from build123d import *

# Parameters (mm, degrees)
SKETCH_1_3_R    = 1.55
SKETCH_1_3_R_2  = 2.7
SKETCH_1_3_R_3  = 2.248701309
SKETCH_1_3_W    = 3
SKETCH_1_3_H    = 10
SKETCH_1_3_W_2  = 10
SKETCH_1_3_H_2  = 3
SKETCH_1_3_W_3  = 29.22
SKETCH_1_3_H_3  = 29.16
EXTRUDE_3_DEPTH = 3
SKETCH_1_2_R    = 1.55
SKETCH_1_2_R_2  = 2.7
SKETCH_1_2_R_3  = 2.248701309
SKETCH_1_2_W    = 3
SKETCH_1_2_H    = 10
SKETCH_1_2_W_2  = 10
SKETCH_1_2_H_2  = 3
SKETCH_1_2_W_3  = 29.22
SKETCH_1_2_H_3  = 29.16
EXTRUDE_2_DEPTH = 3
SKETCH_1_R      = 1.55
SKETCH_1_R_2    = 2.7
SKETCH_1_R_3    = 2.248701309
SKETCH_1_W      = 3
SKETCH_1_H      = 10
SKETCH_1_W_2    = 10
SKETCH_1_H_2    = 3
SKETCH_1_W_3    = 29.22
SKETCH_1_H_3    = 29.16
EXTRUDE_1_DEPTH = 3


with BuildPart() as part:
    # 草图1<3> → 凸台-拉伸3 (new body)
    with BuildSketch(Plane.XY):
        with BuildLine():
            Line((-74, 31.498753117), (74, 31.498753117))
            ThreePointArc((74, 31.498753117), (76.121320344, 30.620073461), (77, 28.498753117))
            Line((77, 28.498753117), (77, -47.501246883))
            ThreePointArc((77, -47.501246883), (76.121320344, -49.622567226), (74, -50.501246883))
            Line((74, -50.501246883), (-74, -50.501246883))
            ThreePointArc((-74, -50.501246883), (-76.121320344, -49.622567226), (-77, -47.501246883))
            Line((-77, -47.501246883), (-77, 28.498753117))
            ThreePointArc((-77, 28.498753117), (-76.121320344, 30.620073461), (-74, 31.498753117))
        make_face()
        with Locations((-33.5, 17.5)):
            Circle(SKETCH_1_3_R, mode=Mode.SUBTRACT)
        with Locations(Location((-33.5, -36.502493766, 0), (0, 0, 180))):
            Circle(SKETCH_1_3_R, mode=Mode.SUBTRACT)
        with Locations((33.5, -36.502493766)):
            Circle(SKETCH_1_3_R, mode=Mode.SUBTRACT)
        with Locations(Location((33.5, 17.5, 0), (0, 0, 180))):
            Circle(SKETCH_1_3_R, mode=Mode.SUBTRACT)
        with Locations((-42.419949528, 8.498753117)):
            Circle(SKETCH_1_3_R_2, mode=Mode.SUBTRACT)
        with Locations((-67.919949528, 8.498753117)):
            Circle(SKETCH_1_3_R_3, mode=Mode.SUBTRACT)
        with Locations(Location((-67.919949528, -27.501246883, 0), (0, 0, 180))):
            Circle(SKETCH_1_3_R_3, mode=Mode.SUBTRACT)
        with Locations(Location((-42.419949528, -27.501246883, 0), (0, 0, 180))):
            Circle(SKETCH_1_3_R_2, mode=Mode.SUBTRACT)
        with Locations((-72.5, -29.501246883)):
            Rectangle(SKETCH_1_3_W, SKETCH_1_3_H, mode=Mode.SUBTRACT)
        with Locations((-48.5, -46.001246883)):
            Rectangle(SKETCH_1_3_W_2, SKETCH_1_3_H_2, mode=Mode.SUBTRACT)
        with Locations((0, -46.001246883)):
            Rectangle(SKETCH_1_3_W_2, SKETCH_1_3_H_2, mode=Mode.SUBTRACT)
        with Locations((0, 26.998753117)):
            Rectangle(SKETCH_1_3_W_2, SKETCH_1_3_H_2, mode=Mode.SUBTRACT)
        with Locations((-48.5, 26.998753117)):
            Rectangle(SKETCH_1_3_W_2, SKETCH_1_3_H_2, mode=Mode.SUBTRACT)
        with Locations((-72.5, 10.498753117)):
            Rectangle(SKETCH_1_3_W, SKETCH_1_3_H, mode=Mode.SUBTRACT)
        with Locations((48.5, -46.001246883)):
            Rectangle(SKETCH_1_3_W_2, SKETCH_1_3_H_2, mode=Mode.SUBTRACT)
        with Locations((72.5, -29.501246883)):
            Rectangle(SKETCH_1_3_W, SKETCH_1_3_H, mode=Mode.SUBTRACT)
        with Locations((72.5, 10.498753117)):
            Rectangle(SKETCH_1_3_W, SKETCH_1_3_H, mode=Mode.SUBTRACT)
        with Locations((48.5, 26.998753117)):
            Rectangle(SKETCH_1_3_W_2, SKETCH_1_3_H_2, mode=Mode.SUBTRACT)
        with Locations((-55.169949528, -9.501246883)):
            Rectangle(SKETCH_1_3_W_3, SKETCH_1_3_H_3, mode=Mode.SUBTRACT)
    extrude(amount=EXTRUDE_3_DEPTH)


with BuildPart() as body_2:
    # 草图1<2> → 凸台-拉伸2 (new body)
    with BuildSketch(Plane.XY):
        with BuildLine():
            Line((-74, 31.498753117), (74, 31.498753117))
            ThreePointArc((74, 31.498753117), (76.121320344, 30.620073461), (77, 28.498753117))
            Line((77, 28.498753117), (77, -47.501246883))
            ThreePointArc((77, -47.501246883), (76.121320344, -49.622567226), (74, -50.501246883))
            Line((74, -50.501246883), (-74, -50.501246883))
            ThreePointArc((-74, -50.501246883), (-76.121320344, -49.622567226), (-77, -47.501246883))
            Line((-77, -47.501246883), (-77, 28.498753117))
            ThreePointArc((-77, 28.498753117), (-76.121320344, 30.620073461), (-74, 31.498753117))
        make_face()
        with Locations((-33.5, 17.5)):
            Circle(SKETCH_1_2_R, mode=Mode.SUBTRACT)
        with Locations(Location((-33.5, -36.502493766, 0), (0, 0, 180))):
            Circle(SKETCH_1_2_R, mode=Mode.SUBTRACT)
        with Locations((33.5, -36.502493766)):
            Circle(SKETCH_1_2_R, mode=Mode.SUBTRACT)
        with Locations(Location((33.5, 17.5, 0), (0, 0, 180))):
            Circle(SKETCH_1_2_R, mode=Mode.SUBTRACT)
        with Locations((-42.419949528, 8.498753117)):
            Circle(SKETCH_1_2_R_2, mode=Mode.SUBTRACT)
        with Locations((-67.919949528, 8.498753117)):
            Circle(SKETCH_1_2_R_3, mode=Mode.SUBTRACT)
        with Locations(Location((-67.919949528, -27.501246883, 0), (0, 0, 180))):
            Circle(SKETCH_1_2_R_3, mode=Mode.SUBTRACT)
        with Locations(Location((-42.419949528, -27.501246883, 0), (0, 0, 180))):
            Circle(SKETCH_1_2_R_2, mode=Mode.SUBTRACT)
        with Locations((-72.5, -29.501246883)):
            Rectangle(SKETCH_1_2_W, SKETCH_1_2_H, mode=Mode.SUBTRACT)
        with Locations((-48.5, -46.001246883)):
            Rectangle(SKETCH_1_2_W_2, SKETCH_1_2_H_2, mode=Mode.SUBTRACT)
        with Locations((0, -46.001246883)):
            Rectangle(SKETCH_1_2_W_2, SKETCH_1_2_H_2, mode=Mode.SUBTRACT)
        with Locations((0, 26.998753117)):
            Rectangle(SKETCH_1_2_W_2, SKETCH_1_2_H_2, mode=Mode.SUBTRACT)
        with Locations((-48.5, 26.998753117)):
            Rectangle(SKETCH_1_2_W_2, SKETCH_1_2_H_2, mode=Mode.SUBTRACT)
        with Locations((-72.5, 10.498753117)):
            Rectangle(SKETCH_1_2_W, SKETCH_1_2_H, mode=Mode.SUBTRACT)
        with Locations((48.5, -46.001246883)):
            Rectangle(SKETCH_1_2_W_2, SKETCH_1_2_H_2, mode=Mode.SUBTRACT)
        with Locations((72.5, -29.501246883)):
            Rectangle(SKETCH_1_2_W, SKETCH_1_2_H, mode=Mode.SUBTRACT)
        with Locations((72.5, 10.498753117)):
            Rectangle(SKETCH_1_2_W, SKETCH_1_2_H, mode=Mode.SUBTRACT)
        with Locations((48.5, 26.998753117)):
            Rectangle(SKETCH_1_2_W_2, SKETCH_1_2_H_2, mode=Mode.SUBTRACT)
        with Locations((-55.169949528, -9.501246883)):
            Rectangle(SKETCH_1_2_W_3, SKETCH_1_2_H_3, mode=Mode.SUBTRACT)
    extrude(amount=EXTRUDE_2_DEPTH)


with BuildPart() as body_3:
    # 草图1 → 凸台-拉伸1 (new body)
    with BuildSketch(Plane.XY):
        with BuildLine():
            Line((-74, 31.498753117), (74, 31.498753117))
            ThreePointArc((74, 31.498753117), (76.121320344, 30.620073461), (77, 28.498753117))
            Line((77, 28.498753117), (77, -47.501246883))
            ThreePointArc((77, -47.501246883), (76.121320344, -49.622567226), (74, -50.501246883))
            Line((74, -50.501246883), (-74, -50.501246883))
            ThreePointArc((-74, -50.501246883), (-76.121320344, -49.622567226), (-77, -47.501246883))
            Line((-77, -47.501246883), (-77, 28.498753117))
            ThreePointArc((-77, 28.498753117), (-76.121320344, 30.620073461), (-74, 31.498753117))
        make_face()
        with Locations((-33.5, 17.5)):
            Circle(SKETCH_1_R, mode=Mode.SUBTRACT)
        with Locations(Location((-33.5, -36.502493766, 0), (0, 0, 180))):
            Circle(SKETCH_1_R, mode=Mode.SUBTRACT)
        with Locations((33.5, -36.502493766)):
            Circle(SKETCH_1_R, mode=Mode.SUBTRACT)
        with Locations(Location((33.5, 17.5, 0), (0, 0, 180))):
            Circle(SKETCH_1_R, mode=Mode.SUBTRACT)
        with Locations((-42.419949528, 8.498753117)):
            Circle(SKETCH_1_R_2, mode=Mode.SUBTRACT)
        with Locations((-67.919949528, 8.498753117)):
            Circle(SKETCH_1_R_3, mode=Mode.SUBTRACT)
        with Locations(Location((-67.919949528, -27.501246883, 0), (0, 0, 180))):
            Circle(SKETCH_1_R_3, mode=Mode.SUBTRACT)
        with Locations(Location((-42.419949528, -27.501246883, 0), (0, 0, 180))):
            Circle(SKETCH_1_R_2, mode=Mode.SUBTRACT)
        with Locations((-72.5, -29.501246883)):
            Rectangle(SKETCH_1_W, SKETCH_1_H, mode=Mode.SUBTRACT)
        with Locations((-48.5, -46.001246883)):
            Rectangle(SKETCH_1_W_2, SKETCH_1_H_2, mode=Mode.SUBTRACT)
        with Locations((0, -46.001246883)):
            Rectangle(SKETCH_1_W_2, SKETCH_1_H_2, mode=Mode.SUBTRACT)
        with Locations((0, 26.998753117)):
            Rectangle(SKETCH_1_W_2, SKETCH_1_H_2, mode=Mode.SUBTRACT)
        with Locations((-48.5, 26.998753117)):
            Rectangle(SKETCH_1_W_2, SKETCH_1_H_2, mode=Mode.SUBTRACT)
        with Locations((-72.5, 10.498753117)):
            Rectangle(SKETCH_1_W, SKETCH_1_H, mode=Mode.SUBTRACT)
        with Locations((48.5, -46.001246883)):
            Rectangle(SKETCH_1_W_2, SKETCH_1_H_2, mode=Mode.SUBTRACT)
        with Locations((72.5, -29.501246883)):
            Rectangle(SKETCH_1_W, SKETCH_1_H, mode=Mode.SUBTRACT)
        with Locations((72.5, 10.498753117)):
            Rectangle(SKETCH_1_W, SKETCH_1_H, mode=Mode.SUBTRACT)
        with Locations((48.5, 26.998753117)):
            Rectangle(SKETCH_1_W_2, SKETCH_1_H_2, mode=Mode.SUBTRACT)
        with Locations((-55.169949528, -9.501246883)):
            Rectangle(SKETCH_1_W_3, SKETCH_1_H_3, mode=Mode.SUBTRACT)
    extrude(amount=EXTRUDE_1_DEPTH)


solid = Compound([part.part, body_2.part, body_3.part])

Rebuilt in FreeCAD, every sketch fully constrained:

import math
import FreeCAD as App
import Part
import Sketcher

V = App.Vector


def add_polygon(sketch, points):
    """Adds a closed chain of lines whose ends are joined by coincident constraints."""
    first, n = sketch.GeometryCount, len(points)
    for a, b in zip(points, points[1:] + points[:1]):
        sketch.addGeometry(Part.LineSegment(App.Vector(*a, 0), App.Vector(*b, 0)), False)
    for i in range(n):
        sketch.addConstraint(Sketcher.Constraint("Coincident", first + i, 2, first + (i + 1) % n, 1))

doc = App.newDocument("Part")
params = doc.addObject("Spreadsheet::Sheet", "Params")
for row, (alias, value) in enumerate([
    ("sketch1_radius", "3 mm"),
    ("sketch1_diameter", "3.1 mm"),
    ("sketch1_diameter2", "5.4 mm"),
    ("sketch1_width", "148 mm"),
    ("sketch1_width2", "10 mm"),
    ("pad1_length", "3 mm"),
    ("sketch2_radius", "3 mm"),
    ("sketch2_diameter", "3.1 mm"),
    ("sketch2_diameter2", "5.4 mm"),
    ("sketch2_width", "148 mm"),
    ("sketch2_width2", "10 mm"),
    ("pad2_length", "3 mm"),
    ("sketch3_radius", "3 mm"),
    ("sketch3_diameter", "3.1 mm"),
    ("sketch3_diameter2", "5.4 mm"),
    ("sketch3_width", "148 mm"),
    ("sketch3_width2", "10 mm"),
    ("pad3_length", "3 mm"),
], start=1):
    params.set(f"A{row}", alias)
    params.set(f"B{row}", "=" + value)
    params.setAlias(f"B{row}", alias)

body = doc.addObject("PartDesign::Body", "Body")

# Sketch on XY plane
sketch1 = doc.addObject("Sketcher::SketchObject", "Sketch")
body.addObject(sketch1)
sketch1.AttachmentSupport = (doc.XY_Plane, [""])
sketch1.MapMode = "FlatFace"
sketch1.addGeometry(Part.LineSegment(V(74, 31.5, 0), V(-74, 31.5, 0)), False)  # 0
sketch1.addGeometry(Part.ArcOfCircle(Part.Circle(V(-74, 28.5, 0), V(0, 0, 1), 3), math.radians(90), math.radians(180)), False)  # 1
sketch1.addGeometry(Part.LineSegment(V(-77, 28.5, 0), V(-77, -47.5, 0)), False)  # 2
sketch1.addGeometry(Part.ArcOfCircle(Part.Circle(V(-74, -47.5, 0), V(0, 0, 1), 3), math.radians(180), math.radians(270)), False)  # 3
sketch1.addGeometry(Part.LineSegment(V(-74, -50.5, 0), V(74, -50.5, 0)), False)  # 4
sketch1.addGeometry(Part.ArcOfCircle(Part.Circle(V(74, -47.5, 0), V(0, 0, 1), 3), math.radians(-90), math.radians(0)), False)  # 5
sketch1.addGeometry(Part.LineSegment(V(77, -47.5, 0), V(77, 28.5, 0)), False)  # 6
sketch1.addGeometry(Part.ArcOfCircle(Part.Circle(V(74, 28.5, 0), V(0, 0, 1), 3), math.radians(0), math.radians(90)), False)  # 7
add_polygon(sketch1, [(43.5, -47.5), (43.5, -44.5), (53.5, -44.5), (53.5, -47.5)])  # lines 8-11
add_polygon(sketch1, [(71, -34.5), (71, -24.5), (74, -24.5), (74, -34.5)])  # lines 12-15
sketch1.addGeometry(Part.Circle(V(33.5, -36.5, 0), V(0, 0, 1), 1.6), False)  # 16
add_polygon(sketch1, [(-5, -47.5), (-5, -44.5), (5, -44.5), (5, -47.5)])  # lines 17-20
sketch1.addGeometry(Part.Circle(V(-33.5, -36.5, 0), V(0, 0, 1), 1.6), False)  # 21
add_polygon(sketch1, [(-53.5, -47.5), (-53.5, -44.5), (-43.5, -44.5), (-43.5, -47.5)])  # lines 22-25
add_polygon(sketch1, [(-74, -34.5), (-74, -24.5), (-71, -24.5), (-71, -34.5)])  # lines 26-29
sketch1.addGeometry(Part.Circle(V(-42.4, -27.5, 0), V(0, 0, 1), 2.7), False)  # 30
sketch1.addGeometry(Part.Circle(V(-67.9, -27.5, 0), V(0, 0, 1), 2.2), False)  # 31
add_polygon(sketch1, [(71, 5.5), (71, 15.5), (74, 15.5), (74, 5.5)])  # lines 32-35
add_polygon(sketch1, [(43.5, 25.5), (43.5, 28.5), (53.5, 28.5), (53.5, 25.5)])  # lines 36-39
sketch1.addGeometry(Part.Circle(V(33.5, 17.5, 0), V(0, 0, 1), 1.6), False)  # 40
add_polygon(sketch1, [(-69.8, -24.1), (-69.8, 5.1), (-40.6, 5.1), (-40.6, -24.1)])  # lines 41-44
sketch1.addGeometry(Part.Circle(V(-42.4, 8.5, 0), V(0, 0, 1), 2.7), False)  # 45
sketch1.addGeometry(Part.Circle(V(-67.9, 8.5, 0), V(0, 0, 1), 2.2), False)  # 46
sketch1.addGeometry(Part.Circle(V(-33.5, 17.5, 0), V(0, 0, 1), 1.6), False)  # 47
add_polygon(sketch1, [(-5, 25.5), (-5, 28.5), (5, 28.5), (5, 25.5)])  # lines 48-51
add_polygon(sketch1, [(-74, 5.5), (-74, 15.5), (-71, 15.5), (-71, 5.5)])  # lines 52-55
add_polygon(sketch1, [(-53.5, 25.5), (-53.5, 28.5), (-43.5, 28.5), (-43.5, 25.5)])  # lines 56-59
sketch1.addConstraint(Sketcher.Constraint("Tangent", 0, 2, 1, 1))
sketch1.addConstraint(Sketcher.Constraint("Tangent", 1, 2, 2, 1))
sketch1.addConstraint(Sketcher.Constraint("Tangent", 2, 2, 3, 1))
sketch1.addConstraint(Sketcher.Constraint("Tangent", 3, 2, 4, 1))
sketch1.addConstraint(Sketcher.Constraint("Tangent", 4, 2, 5, 1))
sketch1.addConstraint(Sketcher.Constraint("Tangent", 5, 2, 6, 1))
sketch1.addConstraint(Sketcher.Constraint("Tangent", 6, 2, 7, 1))
sketch1.addConstraint(Sketcher.Constraint("Tangent", 7, 2, 0, 1))
sketch1.addConstraint(Sketcher.Constraint("Horizontal", 0))
sketch1.addConstraint(Sketcher.Constraint("Vertical", 2))
sketch1.addConstraint(Sketcher.Constraint("Horizontal", 4))
sketch1.addConstraint(Sketcher.Constraint("Vertical", 6))
sketch1.addConstraint(Sketcher.Constraint("Vertical", 8))
sketch1.addConstraint(Sketcher.Constraint("Horizontal", 9))
sketch1.addConstraint(Sketcher.Constraint("Vertical", 10))
sketch1.addConstraint(Sketcher.Constraint("Horizontal", 11))
sketch1.addConstraint(Sketcher.Constraint("Vertical", 12))
sketch1.addConstraint(Sketcher.Constraint("Horizontal", 13))
sketch1.addConstraint(Sketcher.Constraint("Vertical", 14))
sketch1.addConstraint(Sketcher.Constraint("Horizontal", 15))
sketch1.addConstraint(Sketcher.Constraint("Vertical", 17))
sketch1.addConstraint(Sketcher.Constraint("Horizontal", 18))
sketch1.addConstraint(Sketcher.Constraint("Vertical", 19))
sketch1.addConstraint(Sketcher.Constraint("Horizontal", 20))
sketch1.addConstraint(Sketcher.Constraint("Vertical", 22))
sketch1.addConstraint(Sketcher.Constraint("Horizontal", 23))
sketch1.addConstraint(Sketcher.Constraint("Vertical", 24))
sketch1.addConstraint(Sketcher.Constraint("Horizontal", 25))
sketch1.addConstraint(Sketcher.Constraint("Vertical", 26))
sketch1.addConstraint(Sketcher.Constraint("Horizontal", 27))
sketch1.addConstraint(Sketcher.Constraint("Vertical", 28))
sketch1.addConstraint(Sketcher.Constraint("Horizontal", 29))
sketch1.addConstraint(Sketcher.Constraint("Vertical", 32))
sketch1.addConstraint(Sketcher.Constraint("Horizontal", 33))
sketch1.addConstraint(Sketcher.Constraint("Vertical", 34))
sketch1.addConstraint(Sketcher.Constraint("Horizontal", 35))
sketch1.addConstraint(Sketcher.Constraint("Vertical", 36))
sketch1.addConstraint(Sketcher.Constraint("Horizontal", 37))
sketch1.addConstraint(Sketcher.Constraint("Vertical", 38))
sketch1.addConstraint(Sketcher.Constraint("Horizontal", 39))
sketch1.addConstraint(Sketcher.Constraint("Vertical", 41))
sketch1.addConstraint(Sketcher.Constraint("Horizontal", 42))
sketch1.addConstraint(Sketcher.Constraint("Vertical", 43))
sketch1.addConstraint(Sketcher.Constraint("Horizontal", 44))
sketch1.addConstraint(Sketcher.Constraint("Vertical", 48))
sketch1.addConstraint(Sketcher.Constraint("Horizontal", 49))
sketch1.addConstraint(Sketcher.Constraint("Vertical", 50))
sketch1.addConstraint(Sketcher.Constraint("Horizontal", 51))
sketch1.addConstraint(Sketcher.Constraint("Vertical", 52))
sketch1.addConstraint(Sketcher.Constraint("Horizontal", 53))
sketch1.addConstraint(Sketcher.Constraint("Vertical", 54))
sketch1.addConstraint(Sketcher.Constraint("Horizontal", 55))
sketch1.addConstraint(Sketcher.Constraint("Vertical", 56))
sketch1.addConstraint(Sketcher.Constraint("Horizontal", 57))
sketch1.addConstraint(Sketcher.Constraint("Vertical", 58))
sketch1.addConstraint(Sketcher.Constraint("Horizontal", 59))
sketch1.addConstraint(Sketcher.Constraint("Equal", 1, 3))
sketch1.addConstraint(Sketcher.Constraint("Equal", 3, 5))
sketch1.addConstraint(Sketcher.Constraint("Equal", 5, 7))
sketch1.addConstraint(Sketcher.Constraint("Equal", 16, 21))
sketch1.addConstraint(Sketcher.Constraint("Equal", 21, 40))
sketch1.addConstraint(Sketcher.Constraint("Equal", 30, 45))
sketch1.addConstraint(Sketcher.Constraint("Equal", 31, 46))
sketch1.addConstraint(Sketcher.Constraint("Equal", 40, 47))
sketch1.addConstraint(Sketcher.Constraint("Symmetric", 16, 3, 21, 3, -2))
sketch1.addConstraint(Sketcher.Constraint("Symmetric", 40, 3, 47, 3, -2))
sketch1.addConstraint(Sketcher.Constraint("Symmetric", 9, 2, 22, 2, -2))
sketch1.addConstraint(Sketcher.Constraint("Symmetric", 11, 2, 24, 2, -2))
sketch1.addConstraint(Sketcher.Constraint("Symmetric", 13, 2, 26, 2, -2))
sketch1.addConstraint(Sketcher.Constraint("Symmetric", 15, 2, 28, 2, -2))
sketch1.addConstraint(Sketcher.Constraint("Symmetric", 33, 2, 52, 2, -2))
sketch1.addConstraint(Sketcher.Constraint("Symmetric", 35, 2, 54, 2, -2))
sketch1.addConstraint(Sketcher.Constraint("Symmetric", 37, 2, 56, 2, -2))
sketch1.addConstraint(Sketcher.Constraint("Symmetric", 39, 2, 58, 2, -2))
sketch1.addConstraint(Sketcher.Constraint("Horizontal", 30, 3, 31, 3))
sketch1.addConstraint(Sketcher.Constraint("Horizontal", 45, 3, 46, 3))
sketch1.addConstraint(Sketcher.Constraint("Horizontal", 5, 2, 10, 2))
sketch1.addConstraint(Sketcher.Constraint("Horizontal", 9, 2, 17, 2))
sketch1.addConstraint(Sketcher.Constraint("Horizontal", 11, 2, 19, 2))
sketch1.addConstraint(Sketcher.Constraint("Horizontal", 6, 2, 36, 2))
sketch1.addConstraint(Sketcher.Constraint("Horizontal", 37, 2, 48, 2))
sketch1.addConstraint(Sketcher.Constraint("Horizontal", 39, 2, 50, 2))
sketch1.addConstraint(Sketcher.Constraint("Vertical", 16, 3, 40, 3))
sketch1.addConstraint(Sketcher.Constraint("Vertical", 30, 3, 45, 3))
sketch1.addConstraint(Sketcher.Constraint("Vertical", 31, 3, 46, 3))
sketch1.addConstraint(Sketcher.Constraint("Vertical", 7, 2, 13, 2))
sketch1.addConstraint(Sketcher.Constraint("Vertical", 3, 2, 26, 2))
sketch1.addConstraint(Sketcher.Constraint("Vertical", 15, 2, 32, 2))
sketch1.addConstraint(Sketcher.Constraint("Vertical", 14, 2, 33, 2))
sketch1.addConstraint(Sketcher.Constraint("Vertical", 11, 2, 36, 2))
sketch1.addConstraint(Sketcher.Constraint("Vertical", 10, 2, 37, 2))
sketch1.addConstraint(Sketcher.Constraint("Vertical", 20, 2, 48, 2))
sketch1.addConstraint(Sketcher.Constraint("Vertical", 19, 2, 49, 2))
sketch1.addConstraint(Sketcher.Constraint("Equal", 11, 18))
sketch1.addConstraint(Sketcher.Constraint("Equal", 55, 8))
sketch1.addConstraint(Sketcher.Constraint("Equal", 59, 12))
sketch1.addConstraint(Sketcher.Constraint("Equal", 28, 32))
sketch1.addConstraint(Sketcher.Constraint("Equal", 24, 36))
sketch1.addConstraint(Sketcher.Constraint("Radius", 1, 3.0))
sketch1.addConstraint(Sketcher.Constraint("Diameter", 16, 3.1))
sketch1.addConstraint(Sketcher.Constraint("Diameter", 30, 5.4))
sketch1.addConstraint(Sketcher.Constraint("DistanceX", 0, 2, 0, 1, 148.0))
sketch1.addConstraint(Sketcher.Constraint("DistanceX", 9, 1, 9, 2, 10.0))
sketch1.addConstraint(Sketcher.Constraint("DistanceX", 13, 1, 13, 2, 3.0))
sketch1.addConstraint(Sketcher.Constraint("DistanceY", 2, 2, 2, 1, 76.0))
sketch1.addConstraint(Sketcher.Constraint("DistanceX", 17, 2, -1, 1, 5.0))
sketch1.addConstraint(Sketcher.Constraint("DistanceX", 42, 1, 42, 2, 29.22))
sketch1.addConstraint(Sketcher.Constraint("DistanceY", 41, 1, 41, 2, 29.16))
sketch1.addConstraint(Sketcher.Constraint("DistanceX", -1, 1, 16, 3, 33.5))
sketch1.addConstraint(Sketcher.Constraint("DistanceY", -1, 1, 40, 3, 17.5))
sketch1.addConstraint(Sketcher.Constraint("DistanceX", -1, 1, 8, 2, 43.5))
sketch1.addConstraint(Sketcher.Constraint("Diameter", 31, 4.497403))
sketch1.addConstraint(Sketcher.Constraint("DistanceX", 30, 3, -1, 1, 42.41995))
sketch1.addConstraint(Sketcher.Constraint("DistanceX", 31, 3, -1, 1, 67.91995))
sketch1.addConstraint(Sketcher.Constraint("DistanceX", 41, 2, -1, 1, 69.77995))
sketch1.addConstraint(Sketcher.Constraint("DistanceY", -1, 1, 1, 3, 28.498753))
sketch1.addConstraint(Sketcher.Constraint("DistanceY", 16, 3, -1, 1, 36.502494))
sketch1.addConstraint(Sketcher.Constraint("DistanceY", 30, 3, -1, 1, 27.501247))
sketch1.addConstraint(Sketcher.Constraint("DistanceY", -1, 1, 45, 3, 8.498753))
sketch1.addConstraint(Sketcher.Constraint("DistanceY", 12, 2, -1, 1, 24.501247))
sketch1.addConstraint(Sketcher.Constraint("DistanceY", -1, 1, 32, 2, 15.498753))
sketch1.addConstraint(Sketcher.Constraint("DistanceY", -1, 1, 41, 2, 5.078753))
sketch1.setExpression("Constraints[142]", "Params.sketch1_radius")
sketch1.setExpression("Constraints[143]", "Params.sketch1_diameter")
sketch1.setExpression("Constraints[144]", "Params.sketch1_diameter2")
sketch1.setExpression("Constraints[145]", "Params.sketch1_width")
sketch1.setExpression("Constraints[146]", "Params.sketch1_width2")
pad1 = doc.addObject("PartDesign::Pad", "Pad")
body.addObject(pad1)
pad1.Profile = sketch1
pad1.setExpression("Length", "Params.pad1_length")
body2 = doc.addObject("PartDesign::Body", "Body001")

# Sketch on XY plane
sketch2 = doc.addObject("Sketcher::SketchObject", "Sketch001")
body2.addObject(sketch2)
sketch2.AttachmentSupport = (doc.getObject("XY_Plane001"), [""])
sketch2.MapMode = "FlatFace"
sketch2.addGeometry(Part.LineSegment(V(74, 31.5, 0), V(-74, 31.5, 0)), False)  # 0
sketch2.addGeometry(Part.ArcOfCircle(Part.Circle(V(-74, 28.5, 0), V(0, 0, 1), 3), math.radians(90), math.radians(180)), False)  # 1
sketch2.addGeometry(Part.LineSegment(V(-77, 28.5, 0), V(-77, -47.5, 0)), False)  # 2
sketch2.addGeometry(Part.ArcOfCircle(Part.Circle(V(-74, -47.5, 0), V(0, 0, 1), 3), math.radians(180), math.radians(270)), False)  # 3
sketch2.addGeometry(Part.LineSegment(V(-74, -50.5, 0), V(74, -50.5, 0)), False)  # 4
sketch2.addGeometry(Part.ArcOfCircle(Part.Circle(V(74, -47.5, 0), V(0, 0, 1), 3), math.radians(-90), math.radians(0)), False)  # 5
sketch2.addGeometry(Part.LineSegment(V(77, -47.5, 0), V(77, 28.5, 0)), False)  # 6
sketch2.addGeometry(Part.ArcOfCircle(Part.Circle(V(74, 28.5, 0), V(0, 0, 1), 3), math.radians(0), math.radians(90)), False)  # 7
add_polygon(sketch2, [(43.5, -47.5), (43.5, -44.5), (53.5, -44.5), (53.5, -47.5)])  # lines 8-11
add_polygon(sketch2, [(71, -34.5), (71, -24.5), (74, -24.5), (74, -34.5)])  # lines 12-15
sketch2.addGeometry(Part.Circle(V(33.5, -36.5, 0), V(0, 0, 1), 1.6), False)  # 16
add_polygon(sketch2, [(-5, -47.5), (-5, -44.5), (5, -44.5), (5, -47.5)])  # lines 17-20
sketch2.addGeometry(Part.Circle(V(-33.5, -36.5, 0), V(0, 0, 1), 1.6), False)  # 21
add_polygon(sketch2, [(-53.5, -47.5), (-53.5, -44.5), (-43.5, -44.5), (-43.5, -47.5)])  # lines 22-25
add_polygon(sketch2, [(-74, -34.5), (-74, -24.5), (-71, -24.5), (-71, -34.5)])  # lines 26-29
sketch2.addGeometry(Part.Circle(V(-42.4, -27.5, 0), V(0, 0, 1), 2.7), False)  # 30
sketch2.addGeometry(Part.Circle(V(-67.9, -27.5, 0), V(0, 0, 1), 2.2), False)  # 31
add_polygon(sketch2, [(71, 5.5), (71, 15.5), (74, 15.5), (74, 5.5)])  # lines 32-35
add_polygon(sketch2, [(43.5, 25.5), (43.5, 28.5), (53.5, 28.5), (53.5, 25.5)])  # lines 36-39
sketch2.addGeometry(Part.Circle(V(33.5, 17.5, 0), V(0, 0, 1), 1.6), False)  # 40
add_polygon(sketch2, [(-69.8, -24.1), (-69.8, 5.1), (-40.6, 5.1), (-40.6, -24.1)])  # lines 41-44
sketch2.addGeometry(Part.Circle(V(-42.4, 8.5, 0), V(0, 0, 1), 2.7), False)  # 45
sketch2.addGeometry(Part.Circle(V(-67.9, 8.5, 0), V(0, 0, 1), 2.2), False)  # 46
sketch2.addGeometry(Part.Circle(V(-33.5, 17.5, 0), V(0, 0, 1), 1.6), False)  # 47
add_polygon(sketch2, [(-5, 25.5), (-5, 28.5), (5, 28.5), (5, 25.5)])  # lines 48-51
add_polygon(sketch2, [(-74, 5.5), (-74, 15.5), (-71, 15.5), (-71, 5.5)])  # lines 52-55
add_polygon(sketch2, [(-53.5, 25.5), (-53.5, 28.5), (-43.5, 28.5), (-43.5, 25.5)])  # lines 56-59
sketch2.addConstraint(Sketcher.Constraint("Tangent", 0, 2, 1, 1))
sketch2.addConstraint(Sketcher.Constraint("Tangent", 1, 2, 2, 1))
sketch2.addConstraint(Sketcher.Constraint("Tangent", 2, 2, 3, 1))
sketch2.addConstraint(Sketcher.Constraint("Tangent", 3, 2, 4, 1))
sketch2.addConstraint(Sketcher.Constraint("Tangent", 4, 2, 5, 1))
sketch2.addConstraint(Sketcher.Constraint("Tangent", 5, 2, 6, 1))
sketch2.addConstraint(Sketcher.Constraint("Tangent", 6, 2, 7, 1))
sketch2.addConstraint(Sketcher.Constraint("Tangent", 7, 2, 0, 1))
sketch2.addConstraint(Sketcher.Constraint("Horizontal", 0))
sketch2.addConstraint(Sketcher.Constraint("Vertical", 2))
sketch2.addConstraint(Sketcher.Constraint("Horizontal", 4))
sketch2.addConstraint(Sketcher.Constraint("Vertical", 6))
sketch2.addConstraint(Sketcher.Constraint("Vertical", 8))
sketch2.addConstraint(Sketcher.Constraint("Horizontal", 9))
sketch2.addConstraint(Sketcher.Constraint("Vertical", 10))
sketch2.addConstraint(Sketcher.Constraint("Horizontal", 11))
sketch2.addConstraint(Sketcher.Constraint("Vertical", 12))
sketch2.addConstraint(Sketcher.Constraint("Horizontal", 13))
sketch2.addConstraint(Sketcher.Constraint("Vertical", 14))
sketch2.addConstraint(Sketcher.Constraint("Horizontal", 15))
sketch2.addConstraint(Sketcher.Constraint("Vertical", 17))
sketch2.addConstraint(Sketcher.Constraint("Horizontal", 18))
sketch2.addConstraint(Sketcher.Constraint("Vertical", 19))
sketch2.addConstraint(Sketcher.Constraint("Horizontal", 20))
sketch2.addConstraint(Sketcher.Constraint("Vertical", 22))
sketch2.addConstraint(Sketcher.Constraint("Horizontal", 23))
sketch2.addConstraint(Sketcher.Constraint("Vertical", 24))
sketch2.addConstraint(Sketcher.Constraint("Horizontal", 25))
sketch2.addConstraint(Sketcher.Constraint("Vertical", 26))
sketch2.addConstraint(Sketcher.Constraint("Horizontal", 27))
sketch2.addConstraint(Sketcher.Constraint("Vertical", 28))
sketch2.addConstraint(Sketcher.Constraint("Horizontal", 29))
sketch2.addConstraint(Sketcher.Constraint("Vertical", 32))
sketch2.addConstraint(Sketcher.Constraint("Horizontal", 33))
sketch2.addConstraint(Sketcher.Constraint("Vertical", 34))
sketch2.addConstraint(Sketcher.Constraint("Horizontal", 35))
sketch2.addConstraint(Sketcher.Constraint("Vertical", 36))
sketch2.addConstraint(Sketcher.Constraint("Horizontal", 37))
sketch2.addConstraint(Sketcher.Constraint("Vertical", 38))
sketch2.addConstraint(Sketcher.Constraint("Horizontal", 39))
sketch2.addConstraint(Sketcher.Constraint("Vertical", 41))
sketch2.addConstraint(Sketcher.Constraint("Horizontal", 42))
sketch2.addConstraint(Sketcher.Constraint("Vertical", 43))
sketch2.addConstraint(Sketcher.Constraint("Horizontal", 44))
sketch2.addConstraint(Sketcher.Constraint("Vertical", 48))
sketch2.addConstraint(Sketcher.Constraint("Horizontal", 49))
sketch2.addConstraint(Sketcher.Constraint("Vertical", 50))
sketch2.addConstraint(Sketcher.Constraint("Horizontal", 51))
sketch2.addConstraint(Sketcher.Constraint("Vertical", 52))
sketch2.addConstraint(Sketcher.Constraint("Horizontal", 53))
sketch2.addConstraint(Sketcher.Constraint("Vertical", 54))
sketch2.addConstraint(Sketcher.Constraint("Horizontal", 55))
sketch2.addConstraint(Sketcher.Constraint("Vertical", 56))
sketch2.addConstraint(Sketcher.Constraint("Horizontal", 57))
sketch2.addConstraint(Sketcher.Constraint("Vertical", 58))
sketch2.addConstraint(Sketcher.Constraint("Horizontal", 59))
sketch2.addConstraint(Sketcher.Constraint("Equal", 1, 3))
sketch2.addConstraint(Sketcher.Constraint("Equal", 3, 5))
sketch2.addConstraint(Sketcher.Constraint("Equal", 5, 7))
sketch2.addConstraint(Sketcher.Constraint("Equal", 16, 21))
sketch2.addConstraint(Sketcher.Constraint("Equal", 21, 40))
sketch2.addConstraint(Sketcher.Constraint("Equal", 30, 45))
sketch2.addConstraint(Sketcher.Constraint("Equal", 31, 46))
sketch2.addConstraint(Sketcher.Constraint("Equal", 40, 47))
sketch2.addConstraint(Sketcher.Constraint("Symmetric", 16, 3, 21, 3, -2))
sketch2.addConstraint(Sketcher.Constraint("Symmetric", 40, 3, 47, 3, -2))
sketch2.addConstraint(Sketcher.Constraint("Symmetric", 9, 2, 22, 2, -2))
sketch2.addConstraint(Sketcher.Constraint("Symmetric", 11, 2, 24, 2, -2))
sketch2.addConstraint(Sketcher.Constraint("Symmetric", 13, 2, 26, 2, -2))
sketch2.addConstraint(Sketcher.Constraint("Symmetric", 15, 2, 28, 2, -2))
sketch2.addConstraint(Sketcher.Constraint("Symmetric", 33, 2, 52, 2, -2))
sketch2.addConstraint(Sketcher.Constraint("Symmetric", 35, 2, 54, 2, -2))
sketch2.addConstraint(Sketcher.Constraint("Symmetric", 37, 2, 56, 2, -2))
sketch2.addConstraint(Sketcher.Constraint("Symmetric", 39, 2, 58, 2, -2))
sketch2.addConstraint(Sketcher.Constraint("Horizontal", 30, 3, 31, 3))
sketch2.addConstraint(Sketcher.Constraint("Horizontal", 45, 3, 46, 3))
sketch2.addConstraint(Sketcher.Constraint("Horizontal", 5, 2, 10, 2))
sketch2.addConstraint(Sketcher.Constraint("Horizontal", 9, 2, 17, 2))
sketch2.addConstraint(Sketcher.Constraint("Horizontal", 11, 2, 19, 2))
sketch2.addConstraint(Sketcher.Constraint("Horizontal", 6, 2, 36, 2))
sketch2.addConstraint(Sketcher.Constraint("Horizontal", 37, 2, 48, 2))
sketch2.addConstraint(Sketcher.Constraint("Horizontal", 39, 2, 50, 2))
sketch2.addConstraint(Sketcher.Constraint("Vertical", 16, 3, 40, 3))
sketch2.addConstraint(Sketcher.Constraint("Vertical", 30, 3, 45, 3))
sketch2.addConstraint(Sketcher.Constraint("Vertical", 31, 3, 46, 3))
sketch2.addConstraint(Sketcher.Constraint("Vertical", 7, 2, 13, 2))
sketch2.addConstraint(Sketcher.Constraint("Vertical", 3, 2, 26, 2))
sketch2.addConstraint(Sketcher.Constraint("Vertical", 15, 2, 32, 2))
sketch2.addConstraint(Sketcher.Constraint("Vertical", 14, 2, 33, 2))
sketch2.addConstraint(Sketcher.Constraint("Vertical", 11, 2, 36, 2))
sketch2.addConstraint(Sketcher.Constraint("Vertical", 10, 2, 37, 2))
sketch2.addConstraint(Sketcher.Constraint("Vertical", 20, 2, 48, 2))
sketch2.addConstraint(Sketcher.Constraint("Vertical", 19, 2, 49, 2))
sketch2.addConstraint(Sketcher.Constraint("Equal", 11, 18))
sketch2.addConstraint(Sketcher.Constraint("Equal", 55, 8))
sketch2.addConstraint(Sketcher.Constraint("Equal", 59, 12))
sketch2.addConstraint(Sketcher.Constraint("Equal", 28, 32))
sketch2.addConstraint(Sketcher.Constraint("Equal", 24, 36))
sketch2.addConstraint(Sketcher.Constraint("Radius", 1, 3.0))
sketch2.addConstraint(Sketcher.Constraint("Diameter", 16, 3.1))
sketch2.addConstraint(Sketcher.Constraint("Diameter", 30, 5.4))
sketch2.addConstraint(Sketcher.Constraint("DistanceX", 0, 2, 0, 1, 148.0))
sketch2.addConstraint(Sketcher.Constraint("DistanceX", 9, 1, 9, 2, 10.0))
sketch2.addConstraint(Sketcher.Constraint("DistanceX", 13, 1, 13, 2, 3.0))
sketch2.addConstraint(Sketcher.Constraint("DistanceY", 2, 2, 2, 1, 76.0))
sketch2.addConstraint(Sketcher.Constraint("DistanceX", 17, 2, -1, 1, 5.0))
sketch2.addConstraint(Sketcher.Constraint("DistanceX", 42, 1, 42, 2, 29.22))
sketch2.addConstraint(Sketcher.Constraint("DistanceY", 41, 1, 41, 2, 29.16))
sketch2.addConstraint(Sketcher.Constraint("DistanceX", -1, 1, 16, 3, 33.5))
sketch2.addConstraint(Sketcher.Constraint("DistanceY", -1, 1, 40, 3, 17.5))
sketch2.addConstraint(Sketcher.Constraint("DistanceX", -1, 1, 8, 2, 43.5))
sketch2.addConstraint(Sketcher.Constraint("Diameter", 31, 4.497403))
sketch2.addConstraint(Sketcher.Constraint("DistanceX", 30, 3, -1, 1, 42.41995))
sketch2.addConstraint(Sketcher.Constraint("DistanceX", 31, 3, -1, 1, 67.91995))
sketch2.addConstraint(Sketcher.Constraint("DistanceX", 41, 2, -1, 1, 69.77995))
sketch2.addConstraint(Sketcher.Constraint("DistanceY", -1, 1, 1, 3, 28.498753))
sketch2.addConstraint(Sketcher.Constraint("DistanceY", 16, 3, -1, 1, 36.502494))
sketch2.addConstraint(Sketcher.Constraint("DistanceY", 30, 3, -1, 1, 27.501247))
sketch2.addConstraint(Sketcher.Constraint("DistanceY", -1, 1, 45, 3, 8.498753))
sketch2.addConstraint(Sketcher.Constraint("DistanceY", 12, 2, -1, 1, 24.501247))
sketch2.addConstraint(Sketcher.Constraint("DistanceY", -1, 1, 32, 2, 15.498753))
sketch2.addConstraint(Sketcher.Constraint("DistanceY", -1, 1, 41, 2, 5.078753))
sketch2.setExpression("Constraints[142]", "Params.sketch2_radius")
sketch2.setExpression("Constraints[143]", "Params.sketch2_diameter")
sketch2.setExpression("Constraints[144]", "Params.sketch2_diameter2")
sketch2.setExpression("Constraints[145]", "Params.sketch2_width")
sketch2.setExpression("Constraints[146]", "Params.sketch2_width2")
pad2 = doc.addObject("PartDesign::Pad", "Pad001")
body2.addObject(pad2)
pad2.Profile = sketch2
pad2.setExpression("Length", "Params.pad2_length")
body3 = doc.addObject("PartDesign::Body", "Body002")

# Sketch on XY plane
sketch3 = doc.addObject("Sketcher::SketchObject", "Sketch002")
body3.addObject(sketch3)
sketch3.AttachmentSupport = (doc.getObject("XY_Plane002"), [""])
sketch3.MapMode = "FlatFace"
sketch3.addGeometry(Part.LineSegment(V(74, 31.5, 0), V(-74, 31.5, 0)), False)  # 0
sketch3.addGeometry(Part.ArcOfCircle(Part.Circle(V(-74, 28.5, 0), V(0, 0, 1), 3), math.radians(90), math.radians(180)), False)  # 1
sketch3.addGeometry(Part.LineSegment(V(-77, 28.5, 0), V(-77, -47.5, 0)), False)  # 2
sketch3.addGeometry(Part.ArcOfCircle(Part.Circle(V(-74, -47.5, 0), V(0, 0, 1), 3), math.radians(180), math.radians(270)), False)  # 3
sketch3.addGeometry(Part.LineSegment(V(-74, -50.5, 0), V(74, -50.5, 0)), False)  # 4
sketch3.addGeometry(Part.ArcOfCircle(Part.Circle(V(74, -47.5, 0), V(0, 0, 1), 3), math.radians(-90), math.radians(0)), False)  # 5
sketch3.addGeometry(Part.LineSegment(V(77, -47.5, 0), V(77, 28.5, 0)), False)  # 6
sketch3.addGeometry(Part.ArcOfCircle(Part.Circle(V(74, 28.5, 0), V(0, 0, 1), 3), math.radians(0), math.radians(90)), False)  # 7
add_polygon(sketch3, [(43.5, -47.5), (43.5, -44.5), (53.5, -44.5), (53.5, -47.5)])  # lines 8-11
add_polygon(sketch3, [(71, -34.5), (71, -24.5), (74, -24.5), (74, -34.5)])  # lines 12-15
sketch3.addGeometry(Part.Circle(V(33.5, -36.5, 0), V(0, 0, 1), 1.6), False)  # 16
add_polygon(sketch3, [(-5, -47.5), (-5, -44.5), (5, -44.5), (5, -47.5)])  # lines 17-20
sketch3.addGeometry(Part.Circle(V(-33.5, -36.5, 0), V(0, 0, 1), 1.6), False)  # 21
add_polygon(sketch3, [(-53.5, -47.5), (-53.5, -44.5), (-43.5, -44.5), (-43.5, -47.5)])  # lines 22-25
add_polygon(sketch3, [(-74, -34.5), (-74, -24.5), (-71, -24.5), (-71, -34.5)])  # lines 26-29
sketch3.addGeometry(Part.Circle(V(-42.4, -27.5, 0), V(0, 0, 1), 2.7), False)  # 30
sketch3.addGeometry(Part.Circle(V(-67.9, -27.5, 0), V(0, 0, 1), 2.2), False)  # 31
add_polygon(sketch3, [(71, 5.5), (71, 15.5), (74, 15.5), (74, 5.5)])  # lines 32-35
add_polygon(sketch3, [(43.5, 25.5), (43.5, 28.5), (53.5, 28.5), (53.5, 25.5)])  # lines 36-39
sketch3.addGeometry(Part.Circle(V(33.5, 17.5, 0), V(0, 0, 1), 1.6), False)  # 40
add_polygon(sketch3, [(-69.8, -24.1), (-69.8, 5.1), (-40.6, 5.1), (-40.6, -24.1)])  # lines 41-44
sketch3.addGeometry(Part.Circle(V(-42.4, 8.5, 0), V(0, 0, 1), 2.7), False)  # 45
sketch3.addGeometry(Part.Circle(V(-67.9, 8.5, 0), V(0, 0, 1), 2.2), False)  # 46
sketch3.addGeometry(Part.Circle(V(-33.5, 17.5, 0), V(0, 0, 1), 1.6), False)  # 47
add_polygon(sketch3, [(-5, 25.5), (-5, 28.5), (5, 28.5), (5, 25.5)])  # lines 48-51
add_polygon(sketch3, [(-74, 5.5), (-74, 15.5), (-71, 15.5), (-71, 5.5)])  # lines 52-55
add_polygon(sketch3, [(-53.5, 25.5), (-53.5, 28.5), (-43.5, 28.5), (-43.5, 25.5)])  # lines 56-59
sketch3.addConstraint(Sketcher.Constraint("Tangent", 0, 2, 1, 1))
sketch3.addConstraint(Sketcher.Constraint("Tangent", 1, 2, 2, 1))
sketch3.addConstraint(Sketcher.Constraint("Tangent", 2, 2, 3, 1))
sketch3.addConstraint(Sketcher.Constraint("Tangent", 3, 2, 4, 1))
sketch3.addConstraint(Sketcher.Constraint("Tangent", 4, 2, 5, 1))
sketch3.addConstraint(Sketcher.Constraint("Tangent", 5, 2, 6, 1))
sketch3.addConstraint(Sketcher.Constraint("Tangent", 6, 2, 7, 1))
sketch3.addConstraint(Sketcher.Constraint("Tangent", 7, 2, 0, 1))
sketch3.addConstraint(Sketcher.Constraint("Horizontal", 0))
sketch3.addConstraint(Sketcher.Constraint("Vertical", 2))
sketch3.addConstraint(Sketcher.Constraint("Horizontal", 4))
sketch3.addConstraint(Sketcher.Constraint("Vertical", 6))
sketch3.addConstraint(Sketcher.Constraint("Vertical", 8))
sketch3.addConstraint(Sketcher.Constraint("Horizontal", 9))
sketch3.addConstraint(Sketcher.Constraint("Vertical", 10))
sketch3.addConstraint(Sketcher.Constraint("Horizontal", 11))
sketch3.addConstraint(Sketcher.Constraint("Vertical", 12))
sketch3.addConstraint(Sketcher.Constraint("Horizontal", 13))
sketch3.addConstraint(Sketcher.Constraint("Vertical", 14))
sketch3.addConstraint(Sketcher.Constraint("Horizontal", 15))
sketch3.addConstraint(Sketcher.Constraint("Vertical", 17))
sketch3.addConstraint(Sketcher.Constraint("Horizontal", 18))
sketch3.addConstraint(Sketcher.Constraint("Vertical", 19))
sketch3.addConstraint(Sketcher.Constraint("Horizontal", 20))
sketch3.addConstraint(Sketcher.Constraint("Vertical", 22))
sketch3.addConstraint(Sketcher.Constraint("Horizontal", 23))
sketch3.addConstraint(Sketcher.Constraint("Vertical", 24))
sketch3.addConstraint(Sketcher.Constraint("Horizontal", 25))
sketch3.addConstraint(Sketcher.Constraint("Vertical", 26))
sketch3.addConstraint(Sketcher.Constraint("Horizontal", 27))
sketch3.addConstraint(Sketcher.Constraint("Vertical", 28))
sketch3.addConstraint(Sketcher.Constraint("Horizontal", 29))
sketch3.addConstraint(Sketcher.Constraint("Vertical", 32))
sketch3.addConstraint(Sketcher.Constraint("Horizontal", 33))
sketch3.addConstraint(Sketcher.Constraint("Vertical", 34))
sketch3.addConstraint(Sketcher.Constraint("Horizontal", 35))
sketch3.addConstraint(Sketcher.Constraint("Vertical", 36))
sketch3.addConstraint(Sketcher.Constraint("Horizontal", 37))
sketch3.addConstraint(Sketcher.Constraint("Vertical", 38))
sketch3.addConstraint(Sketcher.Constraint("Horizontal", 39))
sketch3.addConstraint(Sketcher.Constraint("Vertical", 41))
sketch3.addConstraint(Sketcher.Constraint("Horizontal", 42))
sketch3.addConstraint(Sketcher.Constraint("Vertical", 43))
sketch3.addConstraint(Sketcher.Constraint("Horizontal", 44))
sketch3.addConstraint(Sketcher.Constraint("Vertical", 48))
sketch3.addConstraint(Sketcher.Constraint("Horizontal", 49))
sketch3.addConstraint(Sketcher.Constraint("Vertical", 50))
sketch3.addConstraint(Sketcher.Constraint("Horizontal", 51))
sketch3.addConstraint(Sketcher.Constraint("Vertical", 52))
sketch3.addConstraint(Sketcher.Constraint("Horizontal", 53))
sketch3.addConstraint(Sketcher.Constraint("Vertical", 54))
sketch3.addConstraint(Sketcher.Constraint("Horizontal", 55))
sketch3.addConstraint(Sketcher.Constraint("Vertical", 56))
sketch3.addConstraint(Sketcher.Constraint("Horizontal", 57))
sketch3.addConstraint(Sketcher.Constraint("Vertical", 58))
sketch3.addConstraint(Sketcher.Constraint("Horizontal", 59))
sketch3.addConstraint(Sketcher.Constraint("Equal", 1, 3))
sketch3.addConstraint(Sketcher.Constraint("Equal", 3, 5))
sketch3.addConstraint(Sketcher.Constraint("Equal", 5, 7))
sketch3.addConstraint(Sketcher.Constraint("Equal", 16, 21))
sketch3.addConstraint(Sketcher.Constraint("Equal", 21, 40))
sketch3.addConstraint(Sketcher.Constraint("Equal", 30, 45))
sketch3.addConstraint(Sketcher.Constraint("Equal", 31, 46))
sketch3.addConstraint(Sketcher.Constraint("Equal", 40, 47))
sketch3.addConstraint(Sketcher.Constraint("Symmetric", 16, 3, 21, 3, -2))
sketch3.addConstraint(Sketcher.Constraint("Symmetric", 40, 3, 47, 3, -2))
sketch3.addConstraint(Sketcher.Constraint("Symmetric", 9, 2, 22, 2, -2))
sketch3.addConstraint(Sketcher.Constraint("Symmetric", 11, 2, 24, 2, -2))
sketch3.addConstraint(Sketcher.Constraint("Symmetric", 13, 2, 26, 2, -2))
sketch3.addConstraint(Sketcher.Constraint("Symmetric", 15, 2, 28, 2, -2))
sketch3.addConstraint(Sketcher.Constraint("Symmetric", 33, 2, 52, 2, -2))
sketch3.addConstraint(Sketcher.Constraint("Symmetric", 35, 2, 54, 2, -2))
sketch3.addConstraint(Sketcher.Constraint("Symmetric", 37, 2, 56, 2, -2))
sketch3.addConstraint(Sketcher.Constraint("Symmetric", 39, 2, 58, 2, -2))
sketch3.addConstraint(Sketcher.Constraint("Horizontal", 30, 3, 31, 3))
sketch3.addConstraint(Sketcher.Constraint("Horizontal", 45, 3, 46, 3))
sketch3.addConstraint(Sketcher.Constraint("Horizontal", 5, 2, 10, 2))
sketch3.addConstraint(Sketcher.Constraint("Horizontal", 9, 2, 17, 2))
sketch3.addConstraint(Sketcher.Constraint("Horizontal", 11, 2, 19, 2))
sketch3.addConstraint(Sketcher.Constraint("Horizontal", 6, 2, 36, 2))
sketch3.addConstraint(Sketcher.Constraint("Horizontal", 37, 2, 48, 2))
sketch3.addConstraint(Sketcher.Constraint("Horizontal", 39, 2, 50, 2))
sketch3.addConstraint(Sketcher.Constraint("Vertical", 16, 3, 40, 3))
sketch3.addConstraint(Sketcher.Constraint("Vertical", 30, 3, 45, 3))
sketch3.addConstraint(Sketcher.Constraint("Vertical", 31, 3, 46, 3))
sketch3.addConstraint(Sketcher.Constraint("Vertical", 7, 2, 13, 2))
sketch3.addConstraint(Sketcher.Constraint("Vertical", 3, 2, 26, 2))
sketch3.addConstraint(Sketcher.Constraint("Vertical", 15, 2, 32, 2))
sketch3.addConstraint(Sketcher.Constraint("Vertical", 14, 2, 33, 2))
sketch3.addConstraint(Sketcher.Constraint("Vertical", 11, 2, 36, 2))
sketch3.addConstraint(Sketcher.Constraint("Vertical", 10, 2, 37, 2))
sketch3.addConstraint(Sketcher.Constraint("Vertical", 20, 2, 48, 2))
sketch3.addConstraint(Sketcher.Constraint("Vertical", 19, 2, 49, 2))
sketch3.addConstraint(Sketcher.Constraint("Equal", 11, 18))
sketch3.addConstraint(Sketcher.Constraint("Equal", 55, 8))
sketch3.addConstraint(Sketcher.Constraint("Equal", 59, 12))
sketch3.addConstraint(Sketcher.Constraint("Equal", 28, 32))
sketch3.addConstraint(Sketcher.Constraint("Equal", 24, 36))
sketch3.addConstraint(Sketcher.Constraint("Radius", 1, 3.0))
sketch3.addConstraint(Sketcher.Constraint("Diameter", 16, 3.1))
sketch3.addConstraint(Sketcher.Constraint("Diameter", 30, 5.4))
sketch3.addConstraint(Sketcher.Constraint("DistanceX", 0, 2, 0, 1, 148.0))
sketch3.addConstraint(Sketcher.Constraint("DistanceX", 9, 1, 9, 2, 10.0))
sketch3.addConstraint(Sketcher.Constraint("DistanceX", 13, 1, 13, 2, 3.0))
sketch3.addConstraint(Sketcher.Constraint("DistanceY", 2, 2, 2, 1, 76.0))
sketch3.addConstraint(Sketcher.Constraint("DistanceX", 17, 2, -1, 1, 5.0))
sketch3.addConstraint(Sketcher.Constraint("DistanceX", 42, 1, 42, 2, 29.22))
sketch3.addConstraint(Sketcher.Constraint("DistanceY", 41, 1, 41, 2, 29.16))
sketch3.addConstraint(Sketcher.Constraint("DistanceX", -1, 1, 16, 3, 33.5))
sketch3.addConstraint(Sketcher.Constraint("DistanceY", -1, 1, 40, 3, 17.5))
sketch3.addConstraint(Sketcher.Constraint("DistanceX", -1, 1, 8, 2, 43.5))
sketch3.addConstraint(Sketcher.Constraint("Diameter", 31, 4.497403))
sketch3.addConstraint(Sketcher.Constraint("DistanceX", 30, 3, -1, 1, 42.41995))
sketch3.addConstraint(Sketcher.Constraint("DistanceX", 31, 3, -1, 1, 67.91995))
sketch3.addConstraint(Sketcher.Constraint("DistanceX", 41, 2, -1, 1, 69.77995))
sketch3.addConstraint(Sketcher.Constraint("DistanceY", -1, 1, 1, 3, 28.498753))
sketch3.addConstraint(Sketcher.Constraint("DistanceY", 16, 3, -1, 1, 36.502494))
sketch3.addConstraint(Sketcher.Constraint("DistanceY", 30, 3, -1, 1, 27.501247))
sketch3.addConstraint(Sketcher.Constraint("DistanceY", -1, 1, 45, 3, 8.498753))
sketch3.addConstraint(Sketcher.Constraint("DistanceY", 12, 2, -1, 1, 24.501247))
sketch3.addConstraint(Sketcher.Constraint("DistanceY", -1, 1, 32, 2, 15.498753))
sketch3.addConstraint(Sketcher.Constraint("DistanceY", -1, 1, 41, 2, 5.078753))
sketch3.setExpression("Constraints[142]", "Params.sketch3_radius")
sketch3.setExpression("Constraints[143]", "Params.sketch3_diameter")
sketch3.setExpression("Constraints[144]", "Params.sketch3_diameter2")
sketch3.setExpression("Constraints[145]", "Params.sketch3_width")
sketch3.setExpression("Constraints[146]", "Params.sketch3_width2")
pad3 = doc.addObject("PartDesign::Pad", "Pad002")
body3.addObject(pad3)
pad3.Profile = sketch3
pad3.setExpression("Length", "Params.pad3_length")

doc.recompute()
